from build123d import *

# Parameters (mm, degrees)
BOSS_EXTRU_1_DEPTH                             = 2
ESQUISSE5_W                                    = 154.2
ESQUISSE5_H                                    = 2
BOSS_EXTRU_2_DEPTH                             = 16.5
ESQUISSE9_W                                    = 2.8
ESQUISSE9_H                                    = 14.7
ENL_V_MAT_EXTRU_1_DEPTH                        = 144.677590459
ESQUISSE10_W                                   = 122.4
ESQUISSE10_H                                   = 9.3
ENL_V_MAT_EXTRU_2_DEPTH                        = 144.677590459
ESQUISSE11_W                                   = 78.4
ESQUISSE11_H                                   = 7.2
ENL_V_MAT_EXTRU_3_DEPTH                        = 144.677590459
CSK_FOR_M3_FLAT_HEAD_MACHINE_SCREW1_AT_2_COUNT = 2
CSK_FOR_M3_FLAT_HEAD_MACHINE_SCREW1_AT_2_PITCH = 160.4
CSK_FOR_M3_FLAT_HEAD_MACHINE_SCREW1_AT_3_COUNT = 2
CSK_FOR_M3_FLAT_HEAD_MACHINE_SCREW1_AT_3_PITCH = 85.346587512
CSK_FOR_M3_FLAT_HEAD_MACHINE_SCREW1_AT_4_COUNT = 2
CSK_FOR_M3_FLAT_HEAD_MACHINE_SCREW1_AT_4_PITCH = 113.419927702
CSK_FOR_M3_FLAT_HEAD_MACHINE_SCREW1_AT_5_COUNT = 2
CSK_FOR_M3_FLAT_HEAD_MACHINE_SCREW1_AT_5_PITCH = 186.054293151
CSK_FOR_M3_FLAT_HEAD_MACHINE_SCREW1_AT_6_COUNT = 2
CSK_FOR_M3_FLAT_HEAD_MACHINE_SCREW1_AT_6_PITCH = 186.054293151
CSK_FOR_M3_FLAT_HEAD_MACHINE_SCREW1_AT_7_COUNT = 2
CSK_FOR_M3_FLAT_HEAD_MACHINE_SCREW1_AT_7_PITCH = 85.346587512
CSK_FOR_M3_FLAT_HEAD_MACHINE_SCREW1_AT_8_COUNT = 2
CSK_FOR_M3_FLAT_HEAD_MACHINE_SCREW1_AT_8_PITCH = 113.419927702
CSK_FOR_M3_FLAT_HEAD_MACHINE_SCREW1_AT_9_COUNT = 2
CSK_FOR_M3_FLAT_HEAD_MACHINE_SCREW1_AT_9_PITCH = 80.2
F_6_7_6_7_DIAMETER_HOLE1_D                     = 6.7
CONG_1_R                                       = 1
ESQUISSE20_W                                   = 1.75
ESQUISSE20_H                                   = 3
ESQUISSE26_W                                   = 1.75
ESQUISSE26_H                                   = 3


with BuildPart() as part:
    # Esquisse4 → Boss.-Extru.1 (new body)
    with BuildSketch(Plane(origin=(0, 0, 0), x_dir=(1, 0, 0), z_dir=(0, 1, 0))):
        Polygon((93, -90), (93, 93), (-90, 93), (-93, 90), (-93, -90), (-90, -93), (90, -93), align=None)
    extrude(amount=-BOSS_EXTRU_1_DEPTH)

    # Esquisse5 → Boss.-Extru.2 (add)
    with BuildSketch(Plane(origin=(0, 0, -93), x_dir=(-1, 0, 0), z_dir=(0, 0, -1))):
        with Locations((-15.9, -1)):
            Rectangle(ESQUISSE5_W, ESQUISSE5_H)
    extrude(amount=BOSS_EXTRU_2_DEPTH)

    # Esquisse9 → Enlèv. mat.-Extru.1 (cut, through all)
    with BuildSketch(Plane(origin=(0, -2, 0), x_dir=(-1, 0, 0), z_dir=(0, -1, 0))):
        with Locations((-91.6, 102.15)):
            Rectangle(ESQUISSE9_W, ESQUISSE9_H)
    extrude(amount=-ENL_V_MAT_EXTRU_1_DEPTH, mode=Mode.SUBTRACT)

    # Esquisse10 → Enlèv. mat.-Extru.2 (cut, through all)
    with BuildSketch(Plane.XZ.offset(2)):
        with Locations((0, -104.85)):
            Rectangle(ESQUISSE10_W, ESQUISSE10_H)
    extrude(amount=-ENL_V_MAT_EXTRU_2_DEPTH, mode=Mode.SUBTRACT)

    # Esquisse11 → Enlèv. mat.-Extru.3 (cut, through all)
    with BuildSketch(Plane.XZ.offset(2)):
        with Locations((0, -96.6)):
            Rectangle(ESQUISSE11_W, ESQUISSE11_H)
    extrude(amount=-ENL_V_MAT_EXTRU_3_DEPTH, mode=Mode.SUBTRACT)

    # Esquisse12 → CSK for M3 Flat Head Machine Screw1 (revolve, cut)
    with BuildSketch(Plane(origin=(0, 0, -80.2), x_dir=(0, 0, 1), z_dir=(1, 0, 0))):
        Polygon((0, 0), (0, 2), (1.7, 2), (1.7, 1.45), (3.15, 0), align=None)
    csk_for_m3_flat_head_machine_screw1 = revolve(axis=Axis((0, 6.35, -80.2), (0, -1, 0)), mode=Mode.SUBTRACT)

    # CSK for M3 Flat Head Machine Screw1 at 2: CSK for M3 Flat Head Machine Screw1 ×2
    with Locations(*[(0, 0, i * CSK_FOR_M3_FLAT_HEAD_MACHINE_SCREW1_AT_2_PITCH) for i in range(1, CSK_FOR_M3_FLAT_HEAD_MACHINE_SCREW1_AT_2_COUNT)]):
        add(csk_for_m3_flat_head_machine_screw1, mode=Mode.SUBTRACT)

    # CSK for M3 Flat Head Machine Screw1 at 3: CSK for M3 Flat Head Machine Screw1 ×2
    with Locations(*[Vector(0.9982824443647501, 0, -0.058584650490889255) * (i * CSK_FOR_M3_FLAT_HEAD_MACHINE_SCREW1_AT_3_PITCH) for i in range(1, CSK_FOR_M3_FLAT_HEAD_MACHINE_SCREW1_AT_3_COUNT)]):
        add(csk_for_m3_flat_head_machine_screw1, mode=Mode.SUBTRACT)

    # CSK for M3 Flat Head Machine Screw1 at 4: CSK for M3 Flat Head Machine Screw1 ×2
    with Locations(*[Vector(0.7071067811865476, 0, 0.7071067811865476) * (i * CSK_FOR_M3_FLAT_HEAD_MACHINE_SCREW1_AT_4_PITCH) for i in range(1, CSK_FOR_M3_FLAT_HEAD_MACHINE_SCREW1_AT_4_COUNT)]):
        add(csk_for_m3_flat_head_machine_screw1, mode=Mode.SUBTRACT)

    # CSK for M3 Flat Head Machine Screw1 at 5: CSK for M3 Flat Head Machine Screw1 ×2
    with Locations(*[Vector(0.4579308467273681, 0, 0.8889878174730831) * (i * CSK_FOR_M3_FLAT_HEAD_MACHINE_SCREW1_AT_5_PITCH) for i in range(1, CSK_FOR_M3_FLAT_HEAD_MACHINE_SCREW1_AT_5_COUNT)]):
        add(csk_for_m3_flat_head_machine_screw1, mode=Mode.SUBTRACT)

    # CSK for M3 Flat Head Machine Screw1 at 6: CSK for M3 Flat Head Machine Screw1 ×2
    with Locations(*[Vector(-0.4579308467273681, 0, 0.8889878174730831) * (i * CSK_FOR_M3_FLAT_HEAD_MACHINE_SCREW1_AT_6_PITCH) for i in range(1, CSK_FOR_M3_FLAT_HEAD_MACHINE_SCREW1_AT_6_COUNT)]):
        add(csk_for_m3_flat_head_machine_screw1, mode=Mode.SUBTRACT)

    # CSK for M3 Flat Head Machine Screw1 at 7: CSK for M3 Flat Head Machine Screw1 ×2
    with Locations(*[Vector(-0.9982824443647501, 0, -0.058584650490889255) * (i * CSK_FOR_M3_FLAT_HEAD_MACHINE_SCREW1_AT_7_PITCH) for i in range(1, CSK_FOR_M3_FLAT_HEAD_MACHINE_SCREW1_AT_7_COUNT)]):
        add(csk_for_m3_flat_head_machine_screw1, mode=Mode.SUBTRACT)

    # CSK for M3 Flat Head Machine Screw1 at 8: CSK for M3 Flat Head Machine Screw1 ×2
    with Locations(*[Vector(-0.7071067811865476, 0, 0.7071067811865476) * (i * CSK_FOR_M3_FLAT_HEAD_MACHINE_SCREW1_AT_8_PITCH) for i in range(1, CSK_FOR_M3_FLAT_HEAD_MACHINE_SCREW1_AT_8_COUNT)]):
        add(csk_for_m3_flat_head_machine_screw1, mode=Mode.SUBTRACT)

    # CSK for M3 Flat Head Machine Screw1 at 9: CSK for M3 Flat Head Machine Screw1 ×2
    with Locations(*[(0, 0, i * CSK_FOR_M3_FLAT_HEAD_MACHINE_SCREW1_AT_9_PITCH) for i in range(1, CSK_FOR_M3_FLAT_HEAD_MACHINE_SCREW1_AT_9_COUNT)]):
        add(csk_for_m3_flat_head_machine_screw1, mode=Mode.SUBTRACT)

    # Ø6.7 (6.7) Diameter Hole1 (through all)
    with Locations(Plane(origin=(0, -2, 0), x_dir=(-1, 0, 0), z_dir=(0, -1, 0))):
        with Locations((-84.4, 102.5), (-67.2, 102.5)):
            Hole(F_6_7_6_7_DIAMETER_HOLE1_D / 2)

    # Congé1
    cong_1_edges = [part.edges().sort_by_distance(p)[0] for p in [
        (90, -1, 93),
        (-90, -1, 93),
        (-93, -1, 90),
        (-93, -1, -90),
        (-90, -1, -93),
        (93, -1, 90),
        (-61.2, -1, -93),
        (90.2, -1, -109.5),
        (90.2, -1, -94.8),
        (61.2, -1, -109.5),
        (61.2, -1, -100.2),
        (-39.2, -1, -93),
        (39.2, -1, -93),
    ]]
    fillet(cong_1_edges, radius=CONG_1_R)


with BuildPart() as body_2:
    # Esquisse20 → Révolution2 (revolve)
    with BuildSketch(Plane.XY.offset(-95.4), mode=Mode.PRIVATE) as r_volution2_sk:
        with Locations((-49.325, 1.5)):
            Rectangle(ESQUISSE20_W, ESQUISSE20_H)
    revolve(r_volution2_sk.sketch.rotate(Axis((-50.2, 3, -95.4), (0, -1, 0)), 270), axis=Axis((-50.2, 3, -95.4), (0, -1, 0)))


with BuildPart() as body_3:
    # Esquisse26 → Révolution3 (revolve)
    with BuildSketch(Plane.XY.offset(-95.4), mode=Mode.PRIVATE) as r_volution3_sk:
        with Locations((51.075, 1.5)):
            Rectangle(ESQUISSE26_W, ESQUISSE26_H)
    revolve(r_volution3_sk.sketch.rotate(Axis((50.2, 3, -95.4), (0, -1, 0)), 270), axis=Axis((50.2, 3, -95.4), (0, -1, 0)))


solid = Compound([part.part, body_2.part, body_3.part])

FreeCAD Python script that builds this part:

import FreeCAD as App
import Part
import Sketcher
from FreeCAD import Vector
Q = App.Units.Quantity


def edges_at(feature, points):
    """Names of the edges that pass closest to the given points."""
    edges = feature.Shape.Edges
    near = lambda p: min(range(len(edges)), key=lambda i: edges[i].distToShape(Part.Vertex(*p))[0])
    return sorted({f"Edge{near(p) + 1}" for p in points})

doc = App.newDocument("Part")
body = doc.addObject("PartDesign::Body", "Body")

# Sketch on XZ plane
sketch1 = body.newObject("Sketcher::SketchObject", "Sketch")
sketch1.AttachmentSupport = (doc.getObject("XZ_Plane"), [""])
sketch1.MapMode = "FlatFace"
sketch1.addGeometry([
    Part.LineSegment(Vector(93, 90, 0), Vector(93, -93, 0)),  # 0
    Part.LineSegment(Vector(93, -93, 0), Vector(-90, -93, 0)),  # 1
    Part.LineSegment(Vector(-90, -93, 0), Vector(-93, -90, 0)),  # 2
    Part.LineSegment(Vector(-93, -90, 0), Vector(-93, 90, 0)),  # 3
    Part.LineSegment(Vector(-93, 90, 0), Vector(-90, 93, 0)),  # 4
    Part.LineSegment(Vector(-90, 93, 0), Vector(90, 93, 0)),  # 5
    Part.LineSegment(Vector(90, 93, 0), Vector(93, 90, 0)),  # 6
], False)
sketch1.addConstraint([
    Sketcher.Constraint("Coincident", 0, 2, 1, 1),
    Sketcher.Constraint("Coincident", 1, 2, 2, 1),
    Sketcher.Constraint("Coincident", 2, 2, 3, 1),
    Sketcher.Constraint("Coincident", 3, 2, 4, 1),
    Sketcher.Constraint("Coincident", 4, 2, 5, 1),
    Sketcher.Constraint("Coincident", 5, 2, 6, 1),
    Sketcher.Constraint("Coincident", 6, 2, 0, 1),
    Sketcher.Constraint("Vertical", 0),
    Sketcher.Constraint("Horizontal", 1),
    Sketcher.Constraint("Vertical", 3),
    Sketcher.Constraint("Horizontal", 5),
    Sketcher.Constraint("Symmetric", 1, 2, 5, 2, -1, 1),
    Sketcher.Constraint("Symmetric", 2, 2, 6, 2, -1, 1),
    Sketcher.Constraint("Perpendicular", 2, 4),
    Sketcher.Constraint("Horizontal", 3, 2, 6, 2),
    Sketcher.Constraint("Vertical", 1, 2, 4, 2),
    Sketcher.Constraint("Equal", 1, 0),
    Sketcher.Constraint("DistanceX", 1, 2, 1, 1, 183.0),
    Sketcher.Constraint("DistanceX", 5, 1, 5, 2, 180.0),
])
pad1 = body.newObject("PartDesign::Pad", "Pad")
pad1.Profile = sketch1
pad1.Length = 2

# Sketch on XY plane
sketch2 = body.newObject("Sketcher::SketchObject", "Sketch001")
sketch2.AttachmentSupport = (doc.getObject("XY_Plane"), [""])
sketch2.MapMode = "FlatFace"
sketch2.AttachmentOffset = App.Placement(Vector(0, 0, -93), App.Rotation())
sketch2.addGeometry([
    Part.LineSegment(Vector(93, 0, 0), Vector(93, -2, 0)),
    Part.LineSegment(Vector(93, -2, 0), Vector(-61.2, -2, 0)),
    Part.LineSegment(Vector(-61.2, -2, 0), Vector(-61.2, 0, 0)),
    Part.LineSegment(Vector(-61.2, 0, 0), Vector(93, 0, 0)),
], False)
sketch2.addConstraint([
    Sketcher.Constraint("Coincident", 0, 2, 1, 1),
    Sketcher.Constraint("Coincident", 1, 2, 2, 1),
    Sketcher.Constraint("Coincident", 2, 2, 3, 1),
    Sketcher.Constraint("Coincident", 3, 2, 0, 1),
    Sketcher.Constraint("Vertical", 0),
    Sketcher.Constraint("Horizontal", 1),
    Sketcher.Constraint("Vertical", 2),
    Sketcher.Constraint("Horizontal", 3),
    Sketcher.Constraint("PointOnObject", 2, 2, -1),
    Sketcher.Constraint("DistanceY", 0, 2, 0, 1, 2.0),
    Sketcher.Constraint("DistanceX", 1, 2, 1, 1, 154.2),
    Sketcher.Constraint("DistanceX", -1, 1, 0, 2, 93.0),
])
pad2 = body.newObject("PartDesign::Pad", "Pad001")
pad2.Profile = sketch2
pad2.Length = 16.5
pad2.Reversed = True

# Sketch on XZ plane
sketch3 = body.newObject("Sketcher::SketchObject", "Sketch002")
sketch3.AttachmentSupport = (doc.getObject("XZ_Plane"), [""])
sketch3.MapMode = "FlatFace"
sketch3.AttachmentOffset = App.Placement(Vector(0, 0, 2), App.Rotation())
sketch3.addGeometry([
    Part.LineSegment(Vector(93, -109.5, 0), Vector(93, -94.8, 0)),
    Part.LineSegment(Vector(93, -94.8, 0), Vector(90.2, -94.8, 0)),
    Part.LineSegment(Vector(90.2, -94.8, 0), Vector(90.2, -109.5, 0)),
    Part.LineSegment(Vector(90.2, -109.5, 0), Vector(93, -109.5, 0)),
], False)
sketch3.addConstraint([
    Sketcher.Constraint("Coincident", 0, 2, 1, 1),
    Sketcher.Constraint("Coincident", 1, 2, 2, 1),
    Sketcher.Constraint("Coincident", 2, 2, 3, 1),
    Sketcher.Constraint("Coincident", 3, 2, 0, 1),
    Sketcher.Constraint("Vertical", 0),
    Sketcher.Constraint("Horizontal", 1),
    Sketcher.Constraint("Vertical", 2),
    Sketcher.Constraint("Horizontal", 3),
    Sketcher.Constraint("DistanceX", 1, 2, 1, 1, 2.8),
    Sketcher.Constraint("DistanceY", 0, 1, 0, 2, 14.7),
    Sketcher.Constraint("DistanceX", -1, 1, 0, 2, 93.0),
    Sketcher.Constraint("DistanceY", 0, 2, -1, 1, 94.8),
])
pocket1 = body.newObject("PartDesign::Pocket", "Pocket")
pocket1.Profile = sketch3
pocket1.Type = "ThroughAll"

# Sketch on XZ plane
sketch4 = body.newObject("Sketcher::SketchObject", "Sketch003")
sketch4.AttachmentSupport = (doc.getObject("XZ_Plane"), [""])
sketch4.MapMode = "FlatFace"
sketch4.AttachmentOffset = App.Placement(Vector(0, 0, 2), App.Rotation())
sketch4.addGeometry([
    Part.LineSegment(Vector(-61.2, -100.2, 0), Vector(-61.2, -109.5, 0)),
    Part.LineSegment(Vector(-61.2, -109.5, 0), Vector(61.2, -109.5, 0)),
    Part.LineSegment(Vector(61.2, -109.5, 0), Vector(61.2, -100.2, 0)),
    Part.LineSegment(Vector(61.2, -100.2, 0), Vector(-61.2, -100.2, 0)),
], False)
sketch4.addConstraint([
    Sketcher.Constraint("Coincident", 0, 2, 1, 1),
    Sketcher.Constraint("Coincident", 1, 2, 2, 1),
    Sketcher.Constraint("Coincident", 2, 2, 3, 1),
    Sketcher.Constraint("Coincident", 3, 2, 0, 1),
    Sketcher.Constraint("Vertical", 0),
    Sketcher.Constraint("Horizontal", 1),
    Sketcher.Constraint("Vertical", 2),
    Sketcher.Constraint("Horizontal", 3),
    Sketcher.Constraint("DistanceX", 1, 1, 1, 2, 122.4),
    Sketcher.Constraint("DistanceY", 0, 2, 0, 1, 9.3),
    Sketcher.Constraint("DistanceX", 0, 2, -1, 1, 61.2),
    Sketcher.Constraint("DistanceY", 0, 2, -1, 1, 109.5),
])
pocket2 = body.newObject("PartDesign::Pocket", "Pocket001")
pocket2.Profile = sketch4
pocket2.Type = "ThroughAll"

# Sketch on XZ plane
sketch5 = body.newObject("Sketcher::SketchObject", "Sketch004")
sketch5.AttachmentSupport = (doc.getObject("XZ_Plane"), [""])
sketch5.MapMode = "FlatFace"
sketch5.AttachmentOffset = App.Placement(Vector(0, 0, 2), App.Rotation())
sketch5.addGeometry([
    Part.LineSegment(Vector(-39.2, -93, 0), Vector(-39.2, -100.2, 0)),
    Part.LineSegment(Vector(-39.2, -100.2, 0), Vector(39.2, -100.2, 0)),
    Part.LineSegment(Vector(39.2, -100.2, 0), Vector(39.2, -93, 0)),
    Part.LineSegment(Vector(39.2, -93, 0), Vector(-39.2, -93, 0)),
], False)
sketch5.addConstraint([
    Sketcher.Constraint("Coincident", 0, 2, 1, 1),
    Sketcher.Constraint("Coincident", 1, 2, 2, 1),
    Sketcher.Constraint("Coincident", 2, 2, 3, 1),
    Sketcher.Constraint("Coincident", 3, 2, 0, 1),
    Sketcher.Constraint("Vertical", 0),
    Sketcher.Constraint("Horizontal", 1),
    Sketcher.Constraint("Vertical", 2),
    Sketcher.Constraint("Horizontal", 3),
    Sketcher.Constraint("DistanceX", 1, 1, 1, 2, 78.4),
    Sketcher.Constraint("DistanceY", 0, 2, 0, 1, 7.2),
    Sketcher.Constraint("DistanceY", 2, 2, -1, 1, 93.0),
    Sketcher.Constraint("DistanceX", 0, 2, -1, 1, 39.2),
])
pocket3 = body.newObject("PartDesign::Pocket", "Pocket002")
pocket3.Profile = sketch5
pocket3.Type = "ThroughAll"

# Sketch on YZ plane
sketch6 = body.newObject("Sketcher::SketchObject", "Sketch005")
sketch6.AttachmentSupport = (doc.getObject("YZ_Plane"), [""])
sketch6.MapMode = "FlatFace"
sketch6.addGeometry([
    Part.LineSegment(Vector(-2, -80.2, 0), Vector(0, -80.2, 0)),  # 0
    Part.LineSegment(Vector(0, -80.2, 0), Vector(0, -77.05, 0)),  # 1
    Part.LineSegment(Vector(0, -77.05, 0), Vector(-1.45, -78.5, 0)),  # 2
    Part.LineSegment(Vector(-1.45, -78.5, 0), Vector(-2, -78.5, 0)),  # 3
    Part.LineSegment(Vector(-2, -78.5, 0), Vector(-2, -80.2, 0)),  # 4
], False)
sketch6.addGeometry(Part.LineSegment(Vector(0, -80.2, 0), Vector(-2, -80.2, 0)), True)  # axis
sketch6.addConstraint([
    Sketcher.Constraint("Coincident", 0, 2, 1, 1),
    Sketcher.Constraint("Coincident", 1, 2, 2, 1),
    Sketcher.Constraint("Coincident", 2, 2, 3, 1),
    Sketcher.Constraint("Coincident", 3, 2, 4, 1),
    Sketcher.Constraint("Coincident", 4, 2, 0, 1),
    Sketcher.Constraint("Horizontal", 0),
    Sketcher.Constraint("Vertical", 1),
    Sketcher.Constraint("Horizontal", 3),
    Sketcher.Constraint("Vertical", 4),
    Sketcher.Constraint("Horizontal", 5),
    Sketcher.Constraint("Coincident", 5, 1, 0, 2),
    Sketcher.Constraint("PointOnObject", 0, 2, -2),
    Sketcher.Constraint("Vertical", 3, 2, 5, 2),
    Sketcher.Constraint("DistanceX", 0, 1, 0, 2, 2.0),
    Sketcher.Constraint("Angle", 2, Q("-135 deg")),
    Sketcher.Constraint("DistanceY", 4, 2, 4, 1, 1.7),
    Sketcher.Constraint("DistanceX", 3, 2, 3, 1, 0.55),
    Sketcher.Constraint("DistanceY", 0, 2, -1, 1, 80.2),
])
groove = body.newObject("PartDesign::Groove", "Groove")
groove.Profile = sketch6
groove.ReferenceAxis = (sketch6, ["Axis0"])
groove.Angle = 360
doc.recompute()

linearpattern = body.newObject("PartDesign::LinearPattern", "LinearPattern")
linearpattern.Originals = [groove]
linearpattern.Direction = (doc.getObject("Z_Axis"), [""])
linearpattern.Mode = "offset"
linearpattern.Offset = 160.4
linearpattern.Occurrences = 2
body.Tip = linearpattern
doc.recompute()

datumline = body.newObject("PartDesign::Line", "DatumLine")
datumline.Placement = App.Placement(Vector(0, 0, 0), App.Rotation(Vector(0, 0, 1), Vector(0.998282444, 0, -0.05858465)))
linearpattern2 = body.newObject("PartDesign::LinearPattern", "LinearPattern001")
linearpattern2.Originals = [groove]
linearpattern2.Direction = (datumline, [""])
linearpattern2.Mode = "offset"
linearpattern2.Offset = 85.346588
linearpattern2.Occurrences = 2
body.Tip = linearpattern2
doc.recompute()

datumline2 = body.newObject("PartDesign::Line", "DatumLine001")
datumline2.Placement = App.Placement(Vector(0, 0, 0), App.Rotation(Vector(0, 0, 1), Vector(0.707106781, 0, 0.707106781)))
linearpattern3 = body.newObject("PartDesign::LinearPattern", "LinearPattern002")
linearpattern3.Originals = [groove]
linearpattern3.Direction = (datumline2, [""])
linearpattern3.Mode = "offset"
linearpattern3.Offset = 113.419928
linearpattern3.Occurrences = 2
body.Tip = linearpattern3
doc.recompute()

datumline3 = body.newObject("PartDesign::Line", "DatumLine002")
datumline3.Placement = App.Placement(Vector(0, 0, 0), App.Rotation(Vector(0, 0, 1), Vector(0.457930847, 0, 0.888987817)))
linearpattern4 = body.newObject("PartDesign::LinearPattern", "LinearPattern003")
linearpattern4.Originals = [groove]
linearpattern4.Direction = (datumline3, [""])
linearpattern4.Mode = "offset"
linearpattern4.Offset = 186.054293
linearpattern4.Occurrences = 2
body.Tip = linearpattern4
doc.recompute()

datumline4 = body.newObject("PartDesign::Line", "DatumLine003")
datumline4.Placement = App.Placement(Vector(0, 0, 0), App.Rotation(Vector(0, 0, 1), Vector(-0.457930847, 0, 0.888987817)))
linearpattern5 = body.newObject("PartDesign::LinearPattern", "LinearPattern004")
linearpattern5.Originals = [groove]
linearpattern5.Direction = (datumline4, [""])
linearpattern5.Mode = "offset"
linearpattern5.Offset = 186.054293
linearpattern5.Occurrences = 2
body.Tip = linearpattern5
doc.recompute()

datumline5 = body.newObject("PartDesign::Line", "DatumLine004")
datumline5.Placement = App.Placement(Vector(0, 0, 0), App.Rotation(Vector(0, 0, 1), Vector(-0.998282444, 0, -0.05858465)))
linearpattern6 = body.newObject("PartDesign::LinearPattern", "LinearPattern005")
linearpattern6.Originals = [groove]
linearpattern6.Direction = (datumline5, [""])
linearpattern6.Mode = "offset"
linearpattern6.Offset = 85.346588
linearpattern6.Occurrences = 2
body.Tip = linearpattern6
doc.recompute()

datumline6 = body.newObject("PartDesign::Line", "DatumLine005")
datumline6.Placement = App.Placement(Vector(0, 0, 0), App.Rotation(Vector(0, 0, 1), Vector(-0.707106781, 0, 0.707106781)))
linearpattern7 = body.newObject("PartDesign::LinearPattern", "LinearPattern006")
linearpattern7.Originals = [groove]
linearpattern7.Direction = (datumline6, [""])
linearpattern7.Mode = "offset"
linearpattern7.Offset = 113.419928
linearpattern7.Occurrences = 2
body.Tip = linearpattern7
doc.recompute()

linearpattern8 = body.newObject("PartDesign::LinearPattern", "LinearPattern007")
linearpattern8.Originals = [groove]
linearpattern8.Direction = (doc.getObject("Z_Axis"), [""])
linearpattern8.Mode = "offset"
linearpattern8.Offset = 80.2
linearpattern8.Occurrences = 2
body.Tip = linearpattern8

# Sketch on XZ plane
sketch7 = body.newObject("Sketcher::SketchObject", "Sketch006")
sketch7.AttachmentSupport = (doc.getObject("XZ_Plane"), [""])
sketch7.MapMode = "FlatFace"
sketch7.AttachmentOffset = App.Placement(Vector(0, 0, 2), App.Rotation())
sketch7.addGeometry([
    Part.Circle(Vector(84.4, -102.5, 0), Vector(0, 0, 1), 3.35),
    Part.Circle(Vector(67.2, -102.5, 0), Vector(0, 0, 1), 3.35),
], False)
sketch7.addConstraint([
    Sketcher.Constraint("Equal", 0, 1),
    Sketcher.Constraint("Horizontal", 0, 3, 1, 3),
    Sketcher.Constraint("Diameter", 0, 6.7),
    Sketcher.Constraint("DistanceX", -1, 1, 0, 3, 84.4),
    Sketcher.Constraint("DistanceY", 0, 3, -1, 1, 102.5),
    Sketcher.Constraint("DistanceX", -1, 1, 1, 3, 67.2),
])
doc.recompute()
hole = body.newObject("PartDesign::Hole", "Hole")
hole.Profile = sketch7
hole.ThreadType = "None"
hole.Diameter = 6.7
hole.DepthType = "ThroughAll"
doc.recompute()

fillet = body.newObject("PartDesign::Fillet", "Fillet")
fillet.Base = (hole, edges_at(hole, [
    (90, -1, 93),
    (-90, -1, 93),
    (-93, -1, 90),
    (-93, -1, -90),
    (-90, -1, -93),
    (93, -1, 90),
    (-61.2, -1, -93),
    (90.2, -1, -109.5),
    (90.2, -1, -94.8),
    (61.2, -1, -109.5),
    (61.2, -1, -100.2),
    (-39.2, -1, -93),
    (39.2, -1, -93),
]))
fillet.Radius = 1
body2 = doc.addObject("PartDesign::Body", "Body001")

# Sketch on XY plane
sketch8 = body2.newObject("Sketcher::SketchObject", "Sketch007")
sketch8.AttachmentSupport = (doc.getObject("XY_Plane001"), [""])
sketch8.MapMode = "FlatFace"
sketch8.AttachmentOffset = App.Placement(Vector(0, 0, -95.4), App.Rotation())
sketch8.addGeometry([
    Part.LineSegment(Vector(-50.2, 3, 0), Vector(-50.2, 0, 0)),
    Part.LineSegment(Vector(-50.2, 0, 0), Vector(-48.45, 0, 0)),
    Part.LineSegment(Vector(-48.45, 0, 0), Vector(-48.45, 3, 0)),
    Part.LineSegment(Vector(-48.45, 3, 0), Vector(-50.2, 3, 0)),
], False)
sketch8.addGeometry(Part.LineSegment(Vector(-50.2, 3, 0), Vector(-50.2, 0, 0)), True)  # axis
sketch8.addConstraint([
    Sketcher.Constraint("Coincident", 0, 2, 1, 1),
    Sketcher.Constraint("Coincident", 1, 2, 2, 1),
    Sketcher.Constraint("Coincident", 2, 2, 3, 1),
    Sketcher.Constraint("Coincident", 3, 2, 0, 1),
    Sketcher.Constraint("Vertical", 0),
    Sketcher.Constraint("Horizontal", 1),
    Sketcher.Constraint("Vertical", 2),
    Sketcher.Constraint("Horizontal", 3),
    Sketcher.Constraint("Vertical", 4),
    Sketcher.Constraint("Coincident", 4, 1, 3, 2),
    Sketcher.Constraint("PointOnObject", 0, 2, -1),
    Sketcher.Constraint("PointOnObject", 4, 2, -1),
    Sketcher.Constraint("DistanceY", 0, 2, 0, 1, 3.0),
    Sketcher.Constraint("DistanceX", 1, 1, 1, 2, 1.75),
    Sketcher.Constraint("DistanceX", 0, 2, -1, 1, 50.2),
])
revolution = body2.newObject("PartDesign::Revolution", "Revolution")
revolution.Profile = sketch8
revolution.ReferenceAxis = (sketch8, ["Axis0"])
revolution.Angle = 360
body3 = doc.addObject("PartDesign::Body", "Body002")

# Sketch on XY plane
sketch9 = body3.newObject("Sketcher::SketchObject", "Sketch008")
sketch9.AttachmentSupport = (doc.getObject("XY_Plane002"), [""])
sketch9.MapMode = "FlatFace"
sketch9.AttachmentOffset = App.Placement(Vector(0, 0, -95.4), App.Rotation())
sketch9.addGeometry([
    Part.LineSegment(Vector(50.2, 3, 0), Vector(50.2, 0, 0)),
    Part.LineSegment(Vector(50.2, 0, 0), Vector(51.95, 0, 0)),
    Part.LineSegment(Vector(51.95, 0, 0), Vector(51.95, 3, 0)),
    Part.LineSegment(Vector(51.95, 3, 0), Vector(50.2, 3, 0)),
], False)
sketch9.addGeometry(Part.LineSegment(Vector(50.2, 3, 0), Vector(50.2, 0, 0)), True)  # axis
sketch9.addConstraint([
    Sketcher.Constraint("Coincident", 0, 2, 1, 1),
    Sketcher.Constraint("Coincident", 1, 2, 2, 1),
    Sketcher.Constraint("Coincident", 2, 2, 3, 1),
    Sketcher.Constraint("Coincident", 3, 2, 0, 1),
    Sketcher.Constraint("Vertical", 0),
    Sketcher.Constraint("Horizontal", 1),
    Sketcher.Constraint("Vertical", 2),
    Sketcher.Constraint("Horizontal", 3),
    Sketcher.Constraint("Vertical", 4),
    Sketcher.Constraint("Coincident", 4, 1, 3, 2),
    Sketcher.Constraint("PointOnObject", 0, 2, -1),
    Sketcher.Constraint("PointOnObject", 4, 2, -1),
    Sketcher.Constraint("DistanceY", 0, 2, 0, 1, 3.0),
    Sketcher.Constraint("DistanceX", 1, 1, 1, 2, 1.75),
    Sketcher.Constraint("DistanceX", -1, 1, 0, 2, 50.2),
])
revolution2 = body3.newObject("PartDesign::Revolution", "Revolution001")
revolution2.Profile = sketch9
revolution2.ReferenceAxis = (sketch9, ["Axis0"])
revolution2.Angle = 360

doc.recompute()
